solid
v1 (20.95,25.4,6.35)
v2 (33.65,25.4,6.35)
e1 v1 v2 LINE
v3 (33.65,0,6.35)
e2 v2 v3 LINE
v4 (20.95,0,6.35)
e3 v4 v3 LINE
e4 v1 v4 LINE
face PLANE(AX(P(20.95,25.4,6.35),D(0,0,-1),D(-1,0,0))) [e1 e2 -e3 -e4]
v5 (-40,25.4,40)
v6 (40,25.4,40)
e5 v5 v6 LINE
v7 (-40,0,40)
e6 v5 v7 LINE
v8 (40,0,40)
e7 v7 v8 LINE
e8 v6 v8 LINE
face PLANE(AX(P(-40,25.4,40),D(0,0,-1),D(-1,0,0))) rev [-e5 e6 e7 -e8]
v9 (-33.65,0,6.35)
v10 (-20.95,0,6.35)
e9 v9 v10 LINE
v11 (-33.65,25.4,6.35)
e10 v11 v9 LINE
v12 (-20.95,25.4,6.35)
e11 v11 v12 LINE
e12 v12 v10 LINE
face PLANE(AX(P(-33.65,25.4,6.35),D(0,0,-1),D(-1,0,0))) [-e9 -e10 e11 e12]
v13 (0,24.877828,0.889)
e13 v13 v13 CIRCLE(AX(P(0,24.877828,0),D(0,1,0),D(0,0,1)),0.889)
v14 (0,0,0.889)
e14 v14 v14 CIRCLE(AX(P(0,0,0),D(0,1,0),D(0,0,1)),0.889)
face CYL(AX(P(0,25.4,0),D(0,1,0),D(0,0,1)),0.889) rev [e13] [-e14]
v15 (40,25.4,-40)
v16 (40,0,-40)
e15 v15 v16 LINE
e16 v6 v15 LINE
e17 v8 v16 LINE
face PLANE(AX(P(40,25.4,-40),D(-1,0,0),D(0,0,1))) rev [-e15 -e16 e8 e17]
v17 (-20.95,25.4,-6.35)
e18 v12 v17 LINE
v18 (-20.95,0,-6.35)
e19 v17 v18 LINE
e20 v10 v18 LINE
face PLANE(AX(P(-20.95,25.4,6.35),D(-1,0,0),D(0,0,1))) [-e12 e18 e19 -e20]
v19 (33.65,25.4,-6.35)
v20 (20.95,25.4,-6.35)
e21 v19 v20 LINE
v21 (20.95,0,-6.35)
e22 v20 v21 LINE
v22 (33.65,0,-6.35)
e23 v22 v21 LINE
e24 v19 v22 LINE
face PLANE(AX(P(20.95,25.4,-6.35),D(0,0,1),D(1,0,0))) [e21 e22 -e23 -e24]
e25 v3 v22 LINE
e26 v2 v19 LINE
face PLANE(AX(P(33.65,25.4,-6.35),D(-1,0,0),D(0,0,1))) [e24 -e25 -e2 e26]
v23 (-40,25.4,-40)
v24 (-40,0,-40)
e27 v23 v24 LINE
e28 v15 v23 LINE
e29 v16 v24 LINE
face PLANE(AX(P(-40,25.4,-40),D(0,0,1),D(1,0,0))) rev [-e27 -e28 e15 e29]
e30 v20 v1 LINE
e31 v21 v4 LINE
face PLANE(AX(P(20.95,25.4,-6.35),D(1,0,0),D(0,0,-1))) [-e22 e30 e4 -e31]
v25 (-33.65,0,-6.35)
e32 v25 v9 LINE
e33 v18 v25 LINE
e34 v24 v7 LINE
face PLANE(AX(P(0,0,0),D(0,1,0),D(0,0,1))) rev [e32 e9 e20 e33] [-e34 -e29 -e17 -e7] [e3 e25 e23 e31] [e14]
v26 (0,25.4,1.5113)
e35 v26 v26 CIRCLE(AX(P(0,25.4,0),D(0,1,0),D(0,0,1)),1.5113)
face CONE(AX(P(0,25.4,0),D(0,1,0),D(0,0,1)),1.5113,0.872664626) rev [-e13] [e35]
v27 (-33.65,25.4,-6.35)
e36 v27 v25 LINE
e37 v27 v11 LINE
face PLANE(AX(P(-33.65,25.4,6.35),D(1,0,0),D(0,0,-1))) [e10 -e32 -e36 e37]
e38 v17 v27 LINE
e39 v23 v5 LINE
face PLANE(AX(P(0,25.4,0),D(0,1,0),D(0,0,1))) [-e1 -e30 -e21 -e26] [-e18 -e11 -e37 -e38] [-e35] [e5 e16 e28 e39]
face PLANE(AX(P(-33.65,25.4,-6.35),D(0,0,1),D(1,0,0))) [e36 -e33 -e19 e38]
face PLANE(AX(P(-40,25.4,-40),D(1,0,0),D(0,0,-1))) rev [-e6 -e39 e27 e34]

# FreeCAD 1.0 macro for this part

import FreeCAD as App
import Part
import Sketcher

V = App.Vector
Q = App.Units.Quantity


def add_polygon(sketch, points):
    """Adds a closed chain of lines whose ends are joined by coincident constraints."""
    first, n = sketch.GeometryCount, len(points)
    for a, b in zip(points, points[1:] + points[:1]):
        sketch.addGeometry(Part.LineSegment(App.Vector(*a, 0), App.Vector(*b, 0)), False)
    for i in range(n):
        sketch.addConstraint(Sketcher.Constraint("Coincident", first + i, 2, first + (i + 1) % n, 1))

doc = App.newDocument("Part")
body = doc.addObject("PartDesign::Body", "Body")

sketch1 = body.newObject("Sketcher::SketchObject", "Sketch")
sketch1.AttachmentSupport = (doc.getObject("XZ_Plane"), [""])
sketch1.MapMode = "FlatFace"
add_polygon(sketch1, [(-40, -40), (-40, 40), (40, 40), (40, -40)])
add_polygon(sketch1, [(-21, 6), (-34, 6), (-34, -6), (-21, -6)])
add_polygon(sketch1, [(34, 6), (21, 6), (21, -6), (34, -6)])
sketch1.addConstraint([
    Sketcher.Constraint("Vertical", 0),
    Sketcher.Constraint("Horizontal", 1),
    Sketcher.Constraint("Vertical", 2),
    Sketcher.Constraint("Horizontal", 3),
    Sketcher.Constraint("Horizontal", 4),
    Sketcher.Constraint("Vertical", 5),
    Sketcher.Constraint("Horizontal", 6),
    Sketcher.Constraint("Vertical", 7),
    Sketcher.Constraint("Horizontal", 8),
    Sketcher.Constraint("Vertical", 9),
    Sketcher.Constraint("Horizontal", 10),
    Sketcher.Constraint("Vertical", 11),
    Sketcher.Constraint("Symmetric", 0, 2, 2, 2, -1, 1),
    Sketcher.Constraint("Symmetric", 6, 2, 8, 2, -1, 1),
    Sketcher.Constraint("Symmetric", 4, 2, 10, 2, -1, 1),
    Sketcher.Constraint("Horizontal", 7, 2, 8, 2),
    Sketcher.Constraint("Equal", 3, 0),
    Sketcher.Constraint("Equal", 10, 5),
    Sketcher.Constraint("DistanceX", 4, 2, 4, 1, Q("0.5 in")),
    Sketcher.Constraint("DistanceX", 0, 2, 4, 2, Q("0.25 in")),
    Sketcher.Constraint("DistanceX", 1, 1, 1, 2, 80.0),
])
pad1 = body.newObject("PartDesign::Pad", "Pad")
pad1.Profile = sketch1
pad1.Length = Q("1 in")
pad1.Reversed = True

sketch2 = body.newObject("Sketcher::SketchObject", "Sketch001")
sketch2.AttachmentSupport = (doc.getObject("XZ_Plane"), [""])
sketch2.MapMode = "FlatFace"
sketch2.AttachmentOffset = App.Placement(V(0, 0, -1 * 25.4), App.Rotation())
sketch2.addGeometry(Part.Circle(V(0, 0, 0), V(0, 0, 1), 0.9), False)
sketch2.addConstraint([
    Sketcher.Constraint("Coincident", 0, 3, -1, 1),
    Sketcher.Constraint("Diameter", 0, Q("0.07 in")),
])
doc.recompute()
hole = body.newObject("PartDesign::Hole", "Hole")
hole.Profile = sketch2
hole.ThreadType = "None"
hole.Diameter = Q("0.07 in")
hole.DepthType = "ThroughAll"
hole.HoleCutType = "Countersink"
hole.HoleCutDiameter = Q("0.119 in")
hole.HoleCutCountersinkAngle = 100
hole.Reversed = True

doc.recompute()
